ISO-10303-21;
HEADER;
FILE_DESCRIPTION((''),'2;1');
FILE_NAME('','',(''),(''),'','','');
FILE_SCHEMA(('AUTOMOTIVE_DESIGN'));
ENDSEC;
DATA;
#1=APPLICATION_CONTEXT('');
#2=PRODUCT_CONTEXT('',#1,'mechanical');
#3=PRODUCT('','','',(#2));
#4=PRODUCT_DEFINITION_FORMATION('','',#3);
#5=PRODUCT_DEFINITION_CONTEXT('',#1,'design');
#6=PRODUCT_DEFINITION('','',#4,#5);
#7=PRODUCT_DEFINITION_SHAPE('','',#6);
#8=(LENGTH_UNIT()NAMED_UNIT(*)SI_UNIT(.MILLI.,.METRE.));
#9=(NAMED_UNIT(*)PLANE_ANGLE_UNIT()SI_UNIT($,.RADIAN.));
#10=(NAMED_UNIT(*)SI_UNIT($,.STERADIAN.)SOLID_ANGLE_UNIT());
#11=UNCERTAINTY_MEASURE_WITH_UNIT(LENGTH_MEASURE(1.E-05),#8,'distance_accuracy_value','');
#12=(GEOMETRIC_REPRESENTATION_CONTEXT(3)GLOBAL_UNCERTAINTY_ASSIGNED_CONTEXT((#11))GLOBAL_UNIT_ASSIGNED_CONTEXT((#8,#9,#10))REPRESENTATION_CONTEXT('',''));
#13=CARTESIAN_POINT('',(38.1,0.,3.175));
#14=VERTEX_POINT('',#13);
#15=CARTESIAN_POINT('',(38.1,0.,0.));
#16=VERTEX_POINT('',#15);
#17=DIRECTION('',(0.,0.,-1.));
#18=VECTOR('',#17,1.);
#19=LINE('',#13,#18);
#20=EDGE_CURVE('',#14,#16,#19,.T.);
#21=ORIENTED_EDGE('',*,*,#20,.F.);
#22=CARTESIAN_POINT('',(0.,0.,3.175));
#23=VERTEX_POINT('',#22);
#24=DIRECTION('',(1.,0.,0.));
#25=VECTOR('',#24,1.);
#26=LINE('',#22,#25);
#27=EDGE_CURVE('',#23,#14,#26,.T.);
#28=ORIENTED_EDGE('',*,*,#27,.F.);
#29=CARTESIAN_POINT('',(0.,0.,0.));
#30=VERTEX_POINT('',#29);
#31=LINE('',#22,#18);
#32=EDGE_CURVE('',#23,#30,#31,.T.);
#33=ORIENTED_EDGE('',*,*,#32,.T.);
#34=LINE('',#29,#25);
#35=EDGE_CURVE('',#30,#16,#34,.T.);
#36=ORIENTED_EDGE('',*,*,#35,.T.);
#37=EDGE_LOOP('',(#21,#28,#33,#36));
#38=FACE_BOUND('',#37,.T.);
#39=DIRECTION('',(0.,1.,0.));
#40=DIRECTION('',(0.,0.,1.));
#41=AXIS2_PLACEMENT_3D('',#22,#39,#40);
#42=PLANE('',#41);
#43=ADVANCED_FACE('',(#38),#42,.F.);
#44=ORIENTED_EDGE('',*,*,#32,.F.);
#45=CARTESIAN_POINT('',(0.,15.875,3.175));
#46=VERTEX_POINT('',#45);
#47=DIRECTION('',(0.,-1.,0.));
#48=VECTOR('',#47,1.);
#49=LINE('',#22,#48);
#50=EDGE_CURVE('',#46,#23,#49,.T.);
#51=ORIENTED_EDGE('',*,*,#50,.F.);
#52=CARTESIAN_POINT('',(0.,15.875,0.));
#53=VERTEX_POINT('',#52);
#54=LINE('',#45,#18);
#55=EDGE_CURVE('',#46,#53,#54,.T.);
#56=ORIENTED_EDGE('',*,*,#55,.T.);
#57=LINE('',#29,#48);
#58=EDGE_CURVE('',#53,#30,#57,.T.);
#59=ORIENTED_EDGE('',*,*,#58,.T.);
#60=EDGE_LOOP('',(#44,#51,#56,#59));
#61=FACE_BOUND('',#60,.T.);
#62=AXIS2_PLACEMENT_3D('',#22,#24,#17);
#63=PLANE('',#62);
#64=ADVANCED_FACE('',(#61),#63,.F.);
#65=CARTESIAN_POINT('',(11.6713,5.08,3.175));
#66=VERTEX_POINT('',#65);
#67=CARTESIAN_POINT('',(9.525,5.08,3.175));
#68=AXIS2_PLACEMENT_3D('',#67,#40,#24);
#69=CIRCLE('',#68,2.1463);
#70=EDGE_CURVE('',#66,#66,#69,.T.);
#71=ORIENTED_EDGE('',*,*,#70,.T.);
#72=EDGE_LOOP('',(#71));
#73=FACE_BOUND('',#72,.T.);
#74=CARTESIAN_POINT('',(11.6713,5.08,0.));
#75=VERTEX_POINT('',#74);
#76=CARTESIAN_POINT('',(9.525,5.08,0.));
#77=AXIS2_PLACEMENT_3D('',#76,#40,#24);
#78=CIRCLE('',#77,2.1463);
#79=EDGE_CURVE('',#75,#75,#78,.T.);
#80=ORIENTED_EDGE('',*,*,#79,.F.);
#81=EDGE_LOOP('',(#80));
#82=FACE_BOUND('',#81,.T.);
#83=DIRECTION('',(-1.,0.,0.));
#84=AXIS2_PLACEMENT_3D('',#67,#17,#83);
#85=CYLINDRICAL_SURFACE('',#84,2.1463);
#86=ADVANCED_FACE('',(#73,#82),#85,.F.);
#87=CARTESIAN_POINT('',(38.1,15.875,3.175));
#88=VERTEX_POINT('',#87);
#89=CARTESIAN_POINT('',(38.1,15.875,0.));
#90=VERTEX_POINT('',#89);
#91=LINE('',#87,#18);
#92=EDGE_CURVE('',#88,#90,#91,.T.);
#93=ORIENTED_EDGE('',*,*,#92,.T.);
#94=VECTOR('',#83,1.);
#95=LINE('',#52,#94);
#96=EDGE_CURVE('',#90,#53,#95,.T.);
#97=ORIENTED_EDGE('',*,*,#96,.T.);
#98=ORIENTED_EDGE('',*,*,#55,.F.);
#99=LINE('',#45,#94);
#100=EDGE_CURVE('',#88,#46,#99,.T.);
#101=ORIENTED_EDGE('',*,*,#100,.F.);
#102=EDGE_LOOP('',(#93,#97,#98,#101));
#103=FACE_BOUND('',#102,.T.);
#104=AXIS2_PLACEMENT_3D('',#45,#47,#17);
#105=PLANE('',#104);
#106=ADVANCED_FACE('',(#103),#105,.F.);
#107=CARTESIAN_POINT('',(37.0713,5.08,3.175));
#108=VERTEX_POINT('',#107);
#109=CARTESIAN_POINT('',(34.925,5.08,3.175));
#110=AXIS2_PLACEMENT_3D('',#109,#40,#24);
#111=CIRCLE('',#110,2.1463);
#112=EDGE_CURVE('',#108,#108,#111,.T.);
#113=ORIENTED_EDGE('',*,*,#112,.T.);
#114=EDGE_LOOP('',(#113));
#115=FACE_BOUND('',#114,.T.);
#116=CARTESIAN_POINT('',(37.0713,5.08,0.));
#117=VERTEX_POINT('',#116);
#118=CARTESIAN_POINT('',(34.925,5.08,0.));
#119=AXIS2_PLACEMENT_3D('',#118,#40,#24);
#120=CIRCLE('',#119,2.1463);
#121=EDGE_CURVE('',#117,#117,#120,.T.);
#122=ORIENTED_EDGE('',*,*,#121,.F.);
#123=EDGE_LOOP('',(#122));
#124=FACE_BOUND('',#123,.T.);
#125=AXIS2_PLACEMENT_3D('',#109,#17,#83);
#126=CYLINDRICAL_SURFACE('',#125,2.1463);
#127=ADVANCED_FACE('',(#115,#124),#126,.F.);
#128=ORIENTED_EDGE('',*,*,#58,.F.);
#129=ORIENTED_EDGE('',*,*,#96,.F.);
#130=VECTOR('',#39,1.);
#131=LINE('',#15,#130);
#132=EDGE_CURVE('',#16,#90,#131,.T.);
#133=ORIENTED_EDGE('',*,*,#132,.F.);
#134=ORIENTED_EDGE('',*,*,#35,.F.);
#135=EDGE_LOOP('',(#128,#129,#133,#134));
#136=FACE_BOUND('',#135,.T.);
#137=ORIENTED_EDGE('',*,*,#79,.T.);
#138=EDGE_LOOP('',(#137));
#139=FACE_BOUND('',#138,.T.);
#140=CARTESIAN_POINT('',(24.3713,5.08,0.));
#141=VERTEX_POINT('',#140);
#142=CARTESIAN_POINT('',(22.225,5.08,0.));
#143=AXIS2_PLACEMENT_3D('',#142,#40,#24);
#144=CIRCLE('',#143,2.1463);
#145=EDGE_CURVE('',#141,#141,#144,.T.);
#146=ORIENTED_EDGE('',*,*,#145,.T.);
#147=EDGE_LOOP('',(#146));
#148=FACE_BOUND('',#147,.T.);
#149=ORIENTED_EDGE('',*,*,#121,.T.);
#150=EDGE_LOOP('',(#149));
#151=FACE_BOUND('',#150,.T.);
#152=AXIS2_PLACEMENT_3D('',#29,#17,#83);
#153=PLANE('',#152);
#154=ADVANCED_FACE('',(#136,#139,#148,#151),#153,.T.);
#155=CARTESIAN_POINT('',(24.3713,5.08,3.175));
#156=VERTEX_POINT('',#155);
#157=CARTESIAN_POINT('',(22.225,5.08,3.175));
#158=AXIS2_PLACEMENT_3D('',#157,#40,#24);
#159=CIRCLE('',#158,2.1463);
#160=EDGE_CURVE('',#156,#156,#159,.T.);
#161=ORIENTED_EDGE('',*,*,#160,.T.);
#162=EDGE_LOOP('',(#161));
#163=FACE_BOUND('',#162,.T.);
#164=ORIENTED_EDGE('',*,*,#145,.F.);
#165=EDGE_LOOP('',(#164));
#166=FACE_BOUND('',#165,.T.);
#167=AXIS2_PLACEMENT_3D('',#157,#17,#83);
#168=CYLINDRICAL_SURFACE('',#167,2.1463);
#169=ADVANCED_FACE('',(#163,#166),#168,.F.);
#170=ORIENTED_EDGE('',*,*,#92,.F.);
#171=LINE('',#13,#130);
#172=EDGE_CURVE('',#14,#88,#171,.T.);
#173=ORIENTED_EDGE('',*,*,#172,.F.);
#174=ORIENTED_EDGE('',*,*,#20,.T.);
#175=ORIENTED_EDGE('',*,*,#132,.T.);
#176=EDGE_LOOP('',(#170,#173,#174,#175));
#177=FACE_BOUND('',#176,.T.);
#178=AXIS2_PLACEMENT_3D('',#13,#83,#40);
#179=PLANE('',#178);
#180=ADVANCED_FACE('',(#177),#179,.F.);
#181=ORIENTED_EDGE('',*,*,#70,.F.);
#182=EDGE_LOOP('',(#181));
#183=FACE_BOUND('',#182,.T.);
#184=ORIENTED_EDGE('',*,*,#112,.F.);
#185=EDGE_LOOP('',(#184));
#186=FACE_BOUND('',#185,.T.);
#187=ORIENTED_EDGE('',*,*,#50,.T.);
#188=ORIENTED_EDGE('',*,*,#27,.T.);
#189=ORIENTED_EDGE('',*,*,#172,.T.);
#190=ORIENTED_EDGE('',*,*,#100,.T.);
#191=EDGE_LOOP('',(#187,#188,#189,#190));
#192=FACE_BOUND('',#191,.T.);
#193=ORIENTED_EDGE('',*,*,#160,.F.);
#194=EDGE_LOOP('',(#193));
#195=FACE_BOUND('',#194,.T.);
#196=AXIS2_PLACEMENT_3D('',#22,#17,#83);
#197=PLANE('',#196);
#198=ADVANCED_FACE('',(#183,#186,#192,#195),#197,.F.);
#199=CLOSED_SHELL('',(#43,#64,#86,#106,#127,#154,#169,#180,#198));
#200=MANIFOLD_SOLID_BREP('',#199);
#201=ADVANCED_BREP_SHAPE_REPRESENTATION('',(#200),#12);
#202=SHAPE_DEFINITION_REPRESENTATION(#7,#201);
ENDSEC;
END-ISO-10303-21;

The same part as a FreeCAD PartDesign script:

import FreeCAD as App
import Part
import Sketcher

V = App.Vector
Q = App.Units.Quantity


def add_polygon(sketch, points):
    """Adds a closed chain of lines whose ends are joined by coincident constraints."""
    first, n = sketch.GeometryCount, len(points)
    for a, b in zip(points, points[1:] + points[:1]):
        sketch.addGeometry(Part.LineSegment(App.Vector(*a, 0), App.Vector(*b, 0)), False)
    for i in range(n):
        sketch.addConstraint(Sketcher.Constraint("Coincident", first + i, 2, first + (i + 1) % n, 1))

doc = App.newDocument("Part")
body = doc.addObject("PartDesign::Body", "Body")

# Sketch on XY plane
sketch1 = body.newObject("Sketcher::SketchObject", "Sketch")
sketch1.AttachmentSupport = (doc.getObject("XY_Plane"), [""])
sketch1.MapMode = "FlatFace"
add_polygon(sketch1, [(0, 15.9), (0, 0), (38.1, 0), (38.1, 15.9)])  # lines 0-3
sketch1.addGeometry(Part.Circle(V(9.5, 5.1, 0), V(0, 0, 1), 2.1), False)  # 4
sketch1.addGeometry(Part.Circle(V(22.2, 5.1, 0), V(0, 0, 1), 2.1), False)  # 5
sketch1.addGeometry(Part.Circle(V(34.9, 5.1, 0), V(0, 0, 1), 2.1), False)  # 6
sketch1.addConstraint(Sketcher.Constraint("Vertical", 0))
sketch1.addConstraint(Sketcher.Constraint("Horizontal", 1))
sketch1.addConstraint(Sketcher.Constraint("Vertical", 2))
sketch1.addConstraint(Sketcher.Constraint("Horizontal", 3))
sketch1.addConstraint(Sketcher.Constraint("Coincident", 0, 2, -1, 1))
sketch1.addConstraint(Sketcher.Constraint("Equal", 4, 5))
sketch1.addConstraint(Sketcher.Constraint("Equal", 5, 6))
sketch1.addConstraint(Sketcher.Constraint("Horizontal", 4, 3, 5, 3))
sketch1.addConstraint(Sketcher.Constraint("Horizontal", 5, 3, 6, 3))
sketch1.addConstraint(Sketcher.Constraint("Diameter", 4, Q("0.169 in")))
sketch1.addConstraint(Sketcher.Constraint("DistanceX", 1, 1, 1, 2, Q("1.5 in")))
sketch1.addConstraint(Sketcher.Constraint("DistanceX", 4, 3, 6, 3, Q("1 in")))
sketch1.addConstraint(Sketcher.Constraint("DistanceY", -1, 1, 4, 3, Q("0.2 in")))
sketch1.addConstraint(Sketcher.Constraint("DistanceX", 4, 3, 5, 3, Q("0.5 in")))
sketch1.addConstraint(Sketcher.Constraint("DistanceY", 0, 2, 0, 1, Q("0.625 in")))
sketch1.addConstraint(Sketcher.Constraint("DistanceX", -1, 1, 4, 3, Q("0.375 in")))
pad1 = body.newObject("PartDesign::Pad", "Pad")
pad1.Profile = sketch1
pad1.Length = Q("0.125 in")

doc.recompute()
